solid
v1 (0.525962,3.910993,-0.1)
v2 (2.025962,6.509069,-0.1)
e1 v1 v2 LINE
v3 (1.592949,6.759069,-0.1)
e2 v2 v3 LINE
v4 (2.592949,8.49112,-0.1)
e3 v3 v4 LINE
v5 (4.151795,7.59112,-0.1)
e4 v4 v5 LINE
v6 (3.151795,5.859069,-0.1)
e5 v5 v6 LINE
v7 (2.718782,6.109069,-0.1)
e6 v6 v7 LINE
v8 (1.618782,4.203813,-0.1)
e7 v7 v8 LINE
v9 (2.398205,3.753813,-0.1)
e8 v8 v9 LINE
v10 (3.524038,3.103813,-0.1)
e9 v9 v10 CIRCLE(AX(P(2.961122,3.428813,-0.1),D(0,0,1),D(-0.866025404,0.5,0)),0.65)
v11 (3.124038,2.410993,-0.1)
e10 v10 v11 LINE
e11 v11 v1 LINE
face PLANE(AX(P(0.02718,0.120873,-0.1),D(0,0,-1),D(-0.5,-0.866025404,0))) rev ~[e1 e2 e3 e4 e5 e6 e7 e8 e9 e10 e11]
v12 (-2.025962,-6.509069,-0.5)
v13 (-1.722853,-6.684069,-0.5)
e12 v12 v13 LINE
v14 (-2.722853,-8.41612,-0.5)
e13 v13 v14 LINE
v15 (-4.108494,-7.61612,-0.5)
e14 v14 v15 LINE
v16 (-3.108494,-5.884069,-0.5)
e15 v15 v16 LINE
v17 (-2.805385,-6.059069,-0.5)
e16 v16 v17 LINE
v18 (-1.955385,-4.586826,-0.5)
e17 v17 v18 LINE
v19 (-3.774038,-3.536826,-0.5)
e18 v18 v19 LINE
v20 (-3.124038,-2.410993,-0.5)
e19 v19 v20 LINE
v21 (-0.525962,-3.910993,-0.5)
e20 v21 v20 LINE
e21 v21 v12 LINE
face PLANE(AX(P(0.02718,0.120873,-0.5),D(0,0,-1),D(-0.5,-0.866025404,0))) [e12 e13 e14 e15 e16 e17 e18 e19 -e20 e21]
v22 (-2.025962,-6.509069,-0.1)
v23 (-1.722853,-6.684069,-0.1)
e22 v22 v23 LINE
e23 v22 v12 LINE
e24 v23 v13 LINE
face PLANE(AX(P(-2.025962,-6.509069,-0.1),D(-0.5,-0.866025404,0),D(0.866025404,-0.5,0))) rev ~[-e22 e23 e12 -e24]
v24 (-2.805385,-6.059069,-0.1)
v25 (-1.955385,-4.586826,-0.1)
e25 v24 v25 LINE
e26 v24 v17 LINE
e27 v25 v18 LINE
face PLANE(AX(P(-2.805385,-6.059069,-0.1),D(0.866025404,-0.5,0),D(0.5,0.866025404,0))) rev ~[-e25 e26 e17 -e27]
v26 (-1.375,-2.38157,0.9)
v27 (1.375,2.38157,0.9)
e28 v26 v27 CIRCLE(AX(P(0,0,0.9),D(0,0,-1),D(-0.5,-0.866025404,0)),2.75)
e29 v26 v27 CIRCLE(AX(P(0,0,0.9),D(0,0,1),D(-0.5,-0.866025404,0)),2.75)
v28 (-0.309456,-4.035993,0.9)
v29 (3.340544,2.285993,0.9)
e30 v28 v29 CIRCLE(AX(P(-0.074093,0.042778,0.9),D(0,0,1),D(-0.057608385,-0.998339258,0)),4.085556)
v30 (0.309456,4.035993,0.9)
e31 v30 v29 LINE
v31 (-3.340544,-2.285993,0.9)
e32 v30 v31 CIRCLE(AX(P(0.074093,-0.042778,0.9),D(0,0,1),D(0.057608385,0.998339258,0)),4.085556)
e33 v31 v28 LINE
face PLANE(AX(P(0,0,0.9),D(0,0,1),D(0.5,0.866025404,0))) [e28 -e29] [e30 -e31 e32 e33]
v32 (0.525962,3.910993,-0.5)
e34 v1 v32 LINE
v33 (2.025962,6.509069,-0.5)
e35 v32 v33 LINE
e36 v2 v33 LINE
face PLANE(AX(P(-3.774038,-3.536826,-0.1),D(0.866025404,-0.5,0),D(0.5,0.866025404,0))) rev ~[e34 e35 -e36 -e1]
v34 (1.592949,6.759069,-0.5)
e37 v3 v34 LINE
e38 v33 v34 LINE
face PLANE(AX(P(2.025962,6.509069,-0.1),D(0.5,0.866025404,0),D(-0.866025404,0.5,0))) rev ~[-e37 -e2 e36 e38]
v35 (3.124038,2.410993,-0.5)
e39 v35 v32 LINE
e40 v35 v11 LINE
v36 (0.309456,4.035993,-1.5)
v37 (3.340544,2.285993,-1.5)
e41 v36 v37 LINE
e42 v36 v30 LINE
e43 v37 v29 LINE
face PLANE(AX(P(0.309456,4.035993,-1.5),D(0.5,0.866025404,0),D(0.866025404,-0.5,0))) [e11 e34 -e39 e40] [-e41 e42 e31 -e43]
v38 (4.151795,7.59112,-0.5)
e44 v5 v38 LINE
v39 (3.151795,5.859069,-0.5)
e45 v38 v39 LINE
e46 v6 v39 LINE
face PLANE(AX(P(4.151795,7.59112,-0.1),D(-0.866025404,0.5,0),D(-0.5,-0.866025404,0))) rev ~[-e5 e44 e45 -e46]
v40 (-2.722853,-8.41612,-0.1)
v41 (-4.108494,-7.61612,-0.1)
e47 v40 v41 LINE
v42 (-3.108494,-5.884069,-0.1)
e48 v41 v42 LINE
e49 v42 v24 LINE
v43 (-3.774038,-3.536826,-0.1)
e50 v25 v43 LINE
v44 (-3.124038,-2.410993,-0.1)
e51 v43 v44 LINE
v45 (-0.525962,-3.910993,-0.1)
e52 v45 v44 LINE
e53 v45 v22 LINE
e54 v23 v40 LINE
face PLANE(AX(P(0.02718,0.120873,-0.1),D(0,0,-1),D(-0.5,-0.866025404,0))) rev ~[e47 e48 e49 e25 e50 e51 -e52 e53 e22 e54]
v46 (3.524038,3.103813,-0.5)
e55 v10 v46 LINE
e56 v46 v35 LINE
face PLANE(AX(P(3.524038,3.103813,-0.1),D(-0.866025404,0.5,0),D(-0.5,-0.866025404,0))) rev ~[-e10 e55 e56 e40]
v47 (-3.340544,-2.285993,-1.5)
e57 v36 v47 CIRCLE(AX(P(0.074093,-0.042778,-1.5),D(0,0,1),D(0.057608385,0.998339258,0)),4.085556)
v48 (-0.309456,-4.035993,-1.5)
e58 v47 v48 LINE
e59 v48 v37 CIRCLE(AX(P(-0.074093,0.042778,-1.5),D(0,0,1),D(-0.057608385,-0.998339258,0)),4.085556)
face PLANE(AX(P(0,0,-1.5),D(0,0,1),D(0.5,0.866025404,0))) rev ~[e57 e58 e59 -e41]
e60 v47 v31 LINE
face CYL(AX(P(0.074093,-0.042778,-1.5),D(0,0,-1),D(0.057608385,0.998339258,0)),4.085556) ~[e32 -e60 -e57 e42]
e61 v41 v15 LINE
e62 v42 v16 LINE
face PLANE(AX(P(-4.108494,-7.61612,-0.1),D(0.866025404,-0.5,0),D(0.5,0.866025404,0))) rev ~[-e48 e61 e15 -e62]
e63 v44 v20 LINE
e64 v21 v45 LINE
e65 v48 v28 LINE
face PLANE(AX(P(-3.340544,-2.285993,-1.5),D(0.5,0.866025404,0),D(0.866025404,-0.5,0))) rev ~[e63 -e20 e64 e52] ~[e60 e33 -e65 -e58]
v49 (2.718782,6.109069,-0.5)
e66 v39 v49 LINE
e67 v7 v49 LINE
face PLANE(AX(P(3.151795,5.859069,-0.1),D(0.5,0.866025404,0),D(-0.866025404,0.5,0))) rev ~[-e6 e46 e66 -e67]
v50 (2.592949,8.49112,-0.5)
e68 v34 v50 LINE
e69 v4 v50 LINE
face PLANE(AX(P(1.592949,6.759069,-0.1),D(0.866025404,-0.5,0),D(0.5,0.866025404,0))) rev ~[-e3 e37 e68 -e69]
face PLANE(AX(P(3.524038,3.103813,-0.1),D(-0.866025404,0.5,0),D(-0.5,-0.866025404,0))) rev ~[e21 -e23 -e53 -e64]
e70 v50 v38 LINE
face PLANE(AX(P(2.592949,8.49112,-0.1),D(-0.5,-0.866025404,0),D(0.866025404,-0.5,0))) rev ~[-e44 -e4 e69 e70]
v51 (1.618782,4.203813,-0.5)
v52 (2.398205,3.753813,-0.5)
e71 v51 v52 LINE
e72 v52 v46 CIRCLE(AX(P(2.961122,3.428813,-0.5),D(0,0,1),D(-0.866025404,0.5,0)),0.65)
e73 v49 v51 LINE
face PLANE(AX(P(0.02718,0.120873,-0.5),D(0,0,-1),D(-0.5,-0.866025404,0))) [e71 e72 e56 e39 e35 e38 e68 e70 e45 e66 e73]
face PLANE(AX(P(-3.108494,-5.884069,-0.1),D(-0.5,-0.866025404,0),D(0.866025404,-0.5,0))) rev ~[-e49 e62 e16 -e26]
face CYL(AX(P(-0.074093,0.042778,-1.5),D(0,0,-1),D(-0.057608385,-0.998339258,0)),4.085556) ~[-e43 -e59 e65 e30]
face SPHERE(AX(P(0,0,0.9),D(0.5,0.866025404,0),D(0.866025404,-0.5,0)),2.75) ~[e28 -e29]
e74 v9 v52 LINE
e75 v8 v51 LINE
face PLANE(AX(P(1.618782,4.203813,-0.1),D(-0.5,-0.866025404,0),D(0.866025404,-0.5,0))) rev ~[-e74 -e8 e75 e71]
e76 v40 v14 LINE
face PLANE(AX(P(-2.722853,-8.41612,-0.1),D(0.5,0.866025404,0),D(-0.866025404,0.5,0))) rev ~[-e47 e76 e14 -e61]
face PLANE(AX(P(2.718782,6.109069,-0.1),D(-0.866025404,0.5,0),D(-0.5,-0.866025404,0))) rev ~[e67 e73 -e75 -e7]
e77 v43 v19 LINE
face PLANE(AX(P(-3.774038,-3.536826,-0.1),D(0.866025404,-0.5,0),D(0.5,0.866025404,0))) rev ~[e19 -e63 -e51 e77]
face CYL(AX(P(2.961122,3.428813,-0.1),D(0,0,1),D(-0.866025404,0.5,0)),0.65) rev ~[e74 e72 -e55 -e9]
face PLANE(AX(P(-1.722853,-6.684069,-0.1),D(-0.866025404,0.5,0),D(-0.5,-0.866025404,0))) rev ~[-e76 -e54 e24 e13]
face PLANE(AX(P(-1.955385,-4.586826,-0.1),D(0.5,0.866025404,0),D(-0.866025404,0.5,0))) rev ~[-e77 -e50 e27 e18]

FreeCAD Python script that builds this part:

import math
import FreeCAD as App
import Part
import Sketcher

V = App.Vector
Q = App.Units.Quantity

doc = App.newDocument("Part")
body = doc.addObject("PartDesign::Body", "Body")

sketch1 = body.newObject("Sketcher::SketchObject", "Sketch")
sketch1.AttachmentSupport = (doc.getObject("XY_Plane"), [""])
sketch1.MapMode = "FlatFace"
sketch1.AttachmentOffset = App.Placement(V(0, 0, 2.4), App.Rotation())
sketch1.addGeometry([
    Part.ArcOfCircle(Part.Circle(V(0, 0, 0), V(0, 0, 1), 2.8), math.radians(180), math.radians(360)),
    Part.LineSegment(V(2.8, 0, 0), V(-2.8, 0, 0)),
], False)
sketch1.addConstraint([
    Sketcher.Constraint("Coincident", 0, 1, 1, 2),
    Sketcher.Constraint("Coincident", 1, 1, 0, 2),
    Sketcher.Constraint("Horizontal", 1),
    Sketcher.Constraint("Coincident", 0, 3, -1, 1),
    Sketcher.Constraint("PointOnObject", 0, 1, -1),
    Sketcher.Constraint("Radius", 0, Q("2.75 mm")),
])
revolution = body.newObject("PartDesign::Revolution", "Revolution")
revolution.Profile = sketch1
revolution.ReferenceAxis = (sketch1, ["H_Axis"])
revolution.Angle = 180
revolution.Reversed = True
body2 = doc.addObject("PartDesign::Body", "Body001")

sketch2 = body2.newObject("Sketcher::SketchObject", "Sketch001")
sketch2.AttachmentSupport = (doc.getObject("XY_Plane001"), [""])
sketch2.MapMode = "FlatFace"
sketch2.addGeometry([
    Part.LineSegment(V(6.65, -2, 0), V(6.65, -1.5, 0)),
    Part.LineSegment(V(6.65, -1.5, 0), V(-4.95, -1.5, 0)),
    Part.LineSegment(V(-4.95, -1.5, 0), V(-4.95, 0.6, 0)),
    Part.LineSegment(V(-4.95, 0.6, 0), V(-6.65, 0.6, 0)),
    Part.LineSegment(V(-6.65, 0.6, 0), V(-6.65, 0.25, 0)),
    Part.LineSegment(V(-6.65, 0.25, 0), V(-8.65, 0.25, 0)),
    Part.LineSegment(V(-8.65, 0.25, 0), V(-8.65, 1.85, 0)),
    Part.LineSegment(V(-8.65, 1.85, 0), V(-6.65, 1.85, 0)),
    Part.LineSegment(V(-6.65, 1.85, 0), V(-6.65, 1.5, 0)),
    Part.LineSegment(V(-6.65, 1.5, 0), V(4.45, 1.5, 0)),
    Part.ArcOfCircle(Part.Circle(V(4.45, 0.85, 0), V(0, 0, 1), 0.65), math.radians(90), math.radians(270)),
    Part.LineSegment(V(4.45, 0.2, 0), V(4.45, -0.7, 0)),
    Part.LineSegment(V(4.45, -0.7, 0), V(6.65, -0.7, 0)),
    Part.LineSegment(V(6.65, -0.7, 0), V(6.65, -0.2, 0)),
    Part.LineSegment(V(6.65, -0.2, 0), V(8.65, -0.2, 0)),
    Part.LineSegment(V(8.65, -0.2, 0), V(8.65, -2, 0)),
    Part.LineSegment(V(8.65, -2, 0), V(6.65, -2, 0)),
], False)
sketch2.addConstraint([
    Sketcher.Constraint("Coincident", 0, 2, 1, 1),
    Sketcher.Constraint("Coincident", 1, 2, 2, 1),
    Sketcher.Constraint("Coincident", 2, 2, 3, 1),
    Sketcher.Constraint("Coincident", 3, 2, 4, 1),
    Sketcher.Constraint("Coincident", 4, 2, 5, 1),
    Sketcher.Constraint("Coincident", 5, 2, 6, 1),
    Sketcher.Constraint("Coincident", 6, 2, 7, 1),
    Sketcher.Constraint("Coincident", 7, 2, 8, 1),
    Sketcher.Constraint("Coincident", 8, 2, 9, 1),
    Sketcher.Constraint("Tangent", 9, 2, 10, 1),
    Sketcher.Constraint("Coincident", 10, 2, 11, 1),
    Sketcher.Constraint("Coincident", 11, 2, 12, 1),
    Sketcher.Constraint("Coincident", 12, 2, 13, 1),
    Sketcher.Constraint("Coincident", 13, 2, 14, 1),
    Sketcher.Constraint("Coincident", 14, 2, 15, 1),
    Sketcher.Constraint("Coincident", 15, 2, 16, 1),
    Sketcher.Constraint("Coincident", 16, 2, 0, 1),
    Sketcher.Constraint("Vertical", 0),
    Sketcher.Constraint("Horizontal", 1),
    Sketcher.Constraint("Vertical", 2),
    Sketcher.Constraint("Horizontal", 3),
    Sketcher.Constraint("Vertical", 4),
    Sketcher.Constraint("Horizontal", 5),
    Sketcher.Constraint("Vertical", 6),
    Sketcher.Constraint("Horizontal", 7),
    Sketcher.Constraint("Vertical", 8),
    Sketcher.Constraint("Horizontal", 9),
    Sketcher.Constraint("Vertical", 11),
    Sketcher.Constraint("Horizontal", 12),
    Sketcher.Constraint("Vertical", 13),
    Sketcher.Constraint("Horizontal", 14),
    Sketcher.Constraint("Vertical", 15),
    Sketcher.Constraint("Horizontal", 16),
    Sketcher.Constraint("Symmetric", 0, 2, 8, 2, -1, 1),
    Sketcher.Constraint("Vertical", 4, 2, 7, 2),
    Sketcher.Constraint("Vertical", 9, 2, 10, 2),
    Sketcher.Constraint("Vertical", 0, 2, 12, 2),
    Sketcher.Constraint("Equal", 7, 14),
    Sketcher.Constraint("Equal", 4, 8),
    Sketcher.Constraint("Equal", 0, 13),
    Sketcher.Constraint("DistanceX", 5, 2, 5, 1, Q("2 mm")),
    Sketcher.Constraint("Radius", 10, Q("0.65 mm")),
    Sketcher.Constraint("DistanceX", 1, 2, 1, 1, Q("11.6 mm")),
    Sketcher.Constraint("DistanceX", 3, 2, 3, 1, Q("1.7 mm")),
    Sketcher.Constraint("DistanceX", 9, 1, 9, 2, Q("11.1 mm")),
    Sketcher.Constraint("DistanceY", 0, 1, 0, 2, Q("0.5 mm")),
    Sketcher.Constraint("DistanceY", 2, 1, 2, 2, Q("2.1 mm")),
    Sketcher.Constraint("DistanceY", 6, 1, 6, 2, Q("1.6 mm")),
    Sketcher.Constraint("DistanceY", 11, 2, 11, 1, Q("0.9 mm")),
    Sketcher.Constraint("DistanceY", 15, 2, 15, 1, Q("1.8 mm")),
])
pad1 = body2.newObject("PartDesign::Pad", "Pad")
pad1.Profile = sketch2
pad1.Length = 0.4
body3 = doc.addObject("PartDesign::Body", "Body002")
doc.recompute()

body2.Placement = App.Placement(V(0, 0, 1.4), App.Rotation(V(1, 0, 0), 180))
boolean = body3.newObject("PartDesign::Boolean", "Boolean")
boolean.Type = "Fuse"
boolean.addObjects([body2])
body4 = doc.addObject("PartDesign::Body", "Body003")

sketch3 = body4.newObject("Sketcher::SketchObject", "Sketch002")
sketch3.AttachmentSupport = (doc.getObject("XY_Plane003"), [""])
sketch3.MapMode = "FlatFace"
sketch3.addGeometry([
    Part.LineSegment(V(-3.6, 1.8, 0), V(-3.6, -1.8, 0)),
    Part.ArcOfCircle(Part.Circle(V(0, 0.1, 0), V(0, 0, 1), 4.1), math.radians(-153), math.radians(-27)),
    Part.LineSegment(V(3.6, -1.8, 0), V(3.6, 1.8, 0)),
    Part.ArcOfCircle(Part.Circle(V(0, -0.1, 0), V(0, 0, 1), 4.1), math.radians(27), math.radians(153)),
], False)
sketch3.addConstraint([
    Sketcher.Constraint("Coincident", 0, 2, 1, 1),
    Sketcher.Constraint("Coincident", 1, 2, 2, 1),
    Sketcher.Constraint("Coincident", 2, 2, 3, 1),
    Sketcher.Constraint("Coincident", 3, 2, 0, 1),
    Sketcher.Constraint("Vertical", 0),
    Sketcher.Constraint("Vertical", 2),
    Sketcher.Constraint("Equal", 1, 3),
    Sketcher.Constraint("Symmetric", 1, 3, 3, 3, -1, 1),
    Sketcher.Constraint("Symmetric", 0, 2, 1, 2, -2),
    Sketcher.Constraint("DistanceY", 0, 2, 0, 1, Q("3.5 mm")),
    Sketcher.Constraint("DistanceX", 0, 2, 1, 2, Q("7.3 mm")),
    Sketcher.Constraint("Radius", 1, Q("4.085556 mm")),
])
pad2 = body4.newObject("PartDesign::Pad", "Pad001")
pad2.Profile = sketch3
pad2.Length = 2.4
doc.recompute()

boolean2 = body4.newObject("PartDesign::Boolean", "Boolean001")
boolean2.Type = "Fuse"
boolean2.addObjects([body])
doc.recompute()

boolean3 = body4.newObject("PartDesign::Boolean", "Boolean002")
boolean3.Type = "Fuse"
boolean3.addObjects([body3])
body5 = doc.addObject("PartDesign::Body", "Body004")
doc.recompute()

body4.Placement = App.Placement(V(0, 0, -1.5), App.Rotation(V(0, 0, 1), 60))
boolean4 = body5.newObject("PartDesign::Boolean", "Boolean003")
boolean4.Type = "Fuse"
boolean4.addObjects([body4])

doc.recompute()
